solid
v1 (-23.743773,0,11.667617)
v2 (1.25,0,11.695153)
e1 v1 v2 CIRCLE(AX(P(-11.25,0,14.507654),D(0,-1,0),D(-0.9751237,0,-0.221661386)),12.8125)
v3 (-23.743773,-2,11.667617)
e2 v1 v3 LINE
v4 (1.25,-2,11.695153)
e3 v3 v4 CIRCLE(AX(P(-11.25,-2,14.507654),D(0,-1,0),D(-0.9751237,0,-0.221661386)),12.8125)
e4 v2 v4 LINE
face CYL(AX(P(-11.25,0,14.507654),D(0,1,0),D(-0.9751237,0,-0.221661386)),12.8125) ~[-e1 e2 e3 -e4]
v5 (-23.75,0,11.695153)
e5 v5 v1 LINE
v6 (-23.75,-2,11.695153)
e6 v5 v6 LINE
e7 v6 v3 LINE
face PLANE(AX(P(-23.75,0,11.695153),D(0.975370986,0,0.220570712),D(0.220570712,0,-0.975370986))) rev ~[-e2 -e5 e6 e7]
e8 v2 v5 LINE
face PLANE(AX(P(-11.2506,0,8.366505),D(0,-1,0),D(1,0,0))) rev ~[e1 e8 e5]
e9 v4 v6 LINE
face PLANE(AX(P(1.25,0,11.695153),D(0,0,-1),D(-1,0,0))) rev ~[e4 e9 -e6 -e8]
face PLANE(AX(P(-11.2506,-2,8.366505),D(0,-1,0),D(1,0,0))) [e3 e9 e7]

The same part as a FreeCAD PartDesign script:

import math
import FreeCAD as App
import Part
import Sketcher

V = App.Vector
Q = App.Units.Quantity

doc = App.newDocument("Part")
params = doc.addObject("Spreadsheet::Sheet", "Params")
for row, (alias, value) in enumerate([
    ("sketch1_width", "25 mm"),
    ("pad1_length", "2 mm"),
], start=1):
    params.set(f"A{row}", alias)
    params.set(f"B{row}", "=" + value)
    params.setAlias(f"B{row}", alias)

body = doc.addObject("PartDesign::Body", "Body")

sketch1 = body.newObject("Sketcher::SketchObject", "Sketch")
sketch1.AttachmentSupport = (doc.getObject("XZ_Plane"), [""])
sketch1.MapMode = "FlatFace"
sketch1.addGeometry([
    Part.LineSegment(V(1.25, 11.695153, 0), V(-23.75, 11.695153, 0)),
    Part.LineSegment(V(-23.75, 11.695153, 0), V(-23.743773, 11.667617, 0)),
    Part.ArcOfCircle(Part.Circle(V(-11.25, 14.507654, 0), V(0, 0, 1), 12.8125), math.radians(-167.193367), math.radians(-12.680386)),
], False)
sketch1.addConstraint([
    Sketcher.Constraint("Coincident", 0, 2, 1, 1),
    Sketcher.Constraint("Coincident", 1, 2, 2, 1),
    Sketcher.Constraint("Coincident", 2, 2, 0, 1),
    Sketcher.Constraint("Horizontal", 0),
    Sketcher.Constraint("DistanceX", 0, 2, 0, 1, Q("25 mm")),
    Sketcher.Constraint("Radius", 2, Q("12.8125 mm")),
    Sketcher.Constraint("DistanceX", 0, 2, 2, 3, Q("12.5 mm")),
    Sketcher.Constraint("DistanceX", 2, 3, -1, 1, Q("11.25 mm")),
    Sketcher.Constraint("Distance", 1, Q("0.028231 mm")),
    Sketcher.Constraint("DistanceY", -1, 1, 2, 3, Q("14.507654 mm")),
])
sketch1.setExpression("Constraints[4]", "Params.sketch1_width")
pad1 = body.newObject("PartDesign::Pad", "Pad")
pad1.Profile = sketch1
pad1.setExpression("Length", "Params.pad1_length")

doc.recompute()
